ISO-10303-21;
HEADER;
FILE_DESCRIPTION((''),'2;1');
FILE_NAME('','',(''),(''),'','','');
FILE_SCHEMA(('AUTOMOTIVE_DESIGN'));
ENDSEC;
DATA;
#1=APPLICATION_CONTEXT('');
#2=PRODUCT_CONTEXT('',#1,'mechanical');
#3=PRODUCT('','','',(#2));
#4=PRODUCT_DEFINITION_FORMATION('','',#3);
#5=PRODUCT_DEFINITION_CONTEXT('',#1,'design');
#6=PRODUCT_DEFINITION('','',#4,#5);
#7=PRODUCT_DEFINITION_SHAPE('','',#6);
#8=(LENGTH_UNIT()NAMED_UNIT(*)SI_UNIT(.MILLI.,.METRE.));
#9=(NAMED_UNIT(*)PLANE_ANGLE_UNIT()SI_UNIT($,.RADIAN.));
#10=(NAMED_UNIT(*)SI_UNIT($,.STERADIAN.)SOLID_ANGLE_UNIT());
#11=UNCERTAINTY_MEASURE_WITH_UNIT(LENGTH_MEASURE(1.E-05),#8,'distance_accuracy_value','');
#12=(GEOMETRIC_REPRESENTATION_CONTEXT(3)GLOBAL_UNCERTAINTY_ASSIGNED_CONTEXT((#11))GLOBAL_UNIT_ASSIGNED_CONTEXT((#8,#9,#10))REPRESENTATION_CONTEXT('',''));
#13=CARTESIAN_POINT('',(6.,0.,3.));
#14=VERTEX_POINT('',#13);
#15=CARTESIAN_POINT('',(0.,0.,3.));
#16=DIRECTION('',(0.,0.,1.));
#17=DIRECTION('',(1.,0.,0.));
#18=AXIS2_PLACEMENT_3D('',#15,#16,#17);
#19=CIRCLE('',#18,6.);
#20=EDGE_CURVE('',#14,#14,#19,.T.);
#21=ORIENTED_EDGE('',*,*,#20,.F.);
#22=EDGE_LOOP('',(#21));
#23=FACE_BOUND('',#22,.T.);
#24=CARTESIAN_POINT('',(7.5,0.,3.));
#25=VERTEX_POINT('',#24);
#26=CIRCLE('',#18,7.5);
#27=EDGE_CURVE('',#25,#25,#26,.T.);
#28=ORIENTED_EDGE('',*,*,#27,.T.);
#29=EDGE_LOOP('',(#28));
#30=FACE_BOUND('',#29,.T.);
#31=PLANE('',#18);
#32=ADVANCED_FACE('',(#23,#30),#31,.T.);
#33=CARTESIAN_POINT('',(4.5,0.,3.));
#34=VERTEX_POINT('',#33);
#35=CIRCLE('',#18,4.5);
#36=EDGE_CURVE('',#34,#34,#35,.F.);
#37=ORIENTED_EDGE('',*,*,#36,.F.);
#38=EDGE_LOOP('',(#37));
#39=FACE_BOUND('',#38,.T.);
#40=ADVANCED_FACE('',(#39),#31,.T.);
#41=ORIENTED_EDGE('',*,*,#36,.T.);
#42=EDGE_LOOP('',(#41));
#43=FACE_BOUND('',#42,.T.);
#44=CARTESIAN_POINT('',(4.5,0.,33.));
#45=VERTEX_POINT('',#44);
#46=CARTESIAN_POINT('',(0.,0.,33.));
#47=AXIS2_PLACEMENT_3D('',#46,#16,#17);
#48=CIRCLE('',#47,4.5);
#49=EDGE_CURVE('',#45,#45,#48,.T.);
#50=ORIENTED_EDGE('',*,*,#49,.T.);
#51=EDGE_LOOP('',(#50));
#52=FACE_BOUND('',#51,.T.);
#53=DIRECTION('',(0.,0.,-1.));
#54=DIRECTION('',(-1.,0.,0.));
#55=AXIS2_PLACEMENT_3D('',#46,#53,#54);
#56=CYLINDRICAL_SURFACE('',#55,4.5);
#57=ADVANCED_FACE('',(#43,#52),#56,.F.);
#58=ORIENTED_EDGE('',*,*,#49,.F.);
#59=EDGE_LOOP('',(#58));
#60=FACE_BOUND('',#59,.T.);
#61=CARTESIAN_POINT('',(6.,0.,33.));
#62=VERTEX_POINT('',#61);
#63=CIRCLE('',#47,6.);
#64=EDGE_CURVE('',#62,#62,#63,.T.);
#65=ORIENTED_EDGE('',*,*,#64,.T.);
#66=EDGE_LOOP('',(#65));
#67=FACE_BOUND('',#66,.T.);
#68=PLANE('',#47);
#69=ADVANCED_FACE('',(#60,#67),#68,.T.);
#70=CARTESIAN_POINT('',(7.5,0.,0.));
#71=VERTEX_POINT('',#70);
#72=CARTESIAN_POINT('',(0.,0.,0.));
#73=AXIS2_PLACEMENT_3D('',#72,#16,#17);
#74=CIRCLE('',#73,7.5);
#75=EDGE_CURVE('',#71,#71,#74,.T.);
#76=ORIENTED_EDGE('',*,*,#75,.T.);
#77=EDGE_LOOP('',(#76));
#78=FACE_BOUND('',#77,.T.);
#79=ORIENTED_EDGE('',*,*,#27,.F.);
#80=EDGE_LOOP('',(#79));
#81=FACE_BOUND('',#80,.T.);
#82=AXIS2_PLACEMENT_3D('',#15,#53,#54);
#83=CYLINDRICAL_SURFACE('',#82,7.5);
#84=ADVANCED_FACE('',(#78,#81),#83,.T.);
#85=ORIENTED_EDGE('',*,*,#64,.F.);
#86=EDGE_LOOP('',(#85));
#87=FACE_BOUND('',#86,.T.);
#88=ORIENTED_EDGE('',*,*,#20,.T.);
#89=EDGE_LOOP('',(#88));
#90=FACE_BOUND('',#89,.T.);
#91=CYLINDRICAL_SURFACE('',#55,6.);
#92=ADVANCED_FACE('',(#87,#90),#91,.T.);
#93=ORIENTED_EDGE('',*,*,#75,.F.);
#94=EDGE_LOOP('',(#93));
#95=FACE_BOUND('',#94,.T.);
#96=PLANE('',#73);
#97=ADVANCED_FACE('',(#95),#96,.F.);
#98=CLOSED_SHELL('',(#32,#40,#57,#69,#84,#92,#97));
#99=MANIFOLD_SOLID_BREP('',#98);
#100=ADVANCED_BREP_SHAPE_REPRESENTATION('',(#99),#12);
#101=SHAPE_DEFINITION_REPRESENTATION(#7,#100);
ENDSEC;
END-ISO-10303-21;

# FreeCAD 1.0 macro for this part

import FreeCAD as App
import Part
import Sketcher

doc = App.newDocument("Part")
body = doc.addObject("PartDesign::Body", "Body")

# Sketch on XY plane
sketch1 = body.newObject("Sketcher::SketchObject", "Sketch")
sketch1.AttachmentSupport = (doc.getObject("XY_Plane"), [""])
sketch1.MapMode = "FlatFace"
sketch1.addGeometry(Part.Circle(App.Vector(0, 0, 0), App.Vector(0, 0, 1), 7.5), False)
sketch1.addConstraint([
    Sketcher.Constraint("Coincident", 0, 3, -1, 1),
    Sketcher.Constraint("Diameter", 0, 15.0),
])
pad1 = body.newObject("PartDesign::Pad", "Pad")
pad1.Profile = sketch1
pad1.Length = 3

# Sketch on XY plane
sketch2 = body.newObject("Sketcher::SketchObject", "Sketch001")
sketch2.AttachmentSupport = (doc.getObject("XY_Plane"), [""])
sketch2.MapMode = "FlatFace"
sketch2.AttachmentOffset = App.Placement(App.Vector(0, 0, 3), App.Rotation())
sketch2.addGeometry([
    Part.Circle(App.Vector(0, 0, 0), App.Vector(0, 0, 1), 6),
    Part.Circle(App.Vector(0, 0, 0), App.Vector(0, 0, 1), 4.5),
], False)
sketch2.addConstraint([
    Sketcher.Constraint("Coincident", 0, 3, -1, 1),
    Sketcher.Constraint("Coincident", 1, 3, -1, 1),
    Sketcher.Constraint("Diameter", 0, 12.0),
    Sketcher.Constraint("Diameter", 1, 9.0),
])
pad2 = body.newObject("PartDesign::Pad", "Pad001")
pad2.Profile = sketch2
pad2.Length = 30

doc.recompute()
